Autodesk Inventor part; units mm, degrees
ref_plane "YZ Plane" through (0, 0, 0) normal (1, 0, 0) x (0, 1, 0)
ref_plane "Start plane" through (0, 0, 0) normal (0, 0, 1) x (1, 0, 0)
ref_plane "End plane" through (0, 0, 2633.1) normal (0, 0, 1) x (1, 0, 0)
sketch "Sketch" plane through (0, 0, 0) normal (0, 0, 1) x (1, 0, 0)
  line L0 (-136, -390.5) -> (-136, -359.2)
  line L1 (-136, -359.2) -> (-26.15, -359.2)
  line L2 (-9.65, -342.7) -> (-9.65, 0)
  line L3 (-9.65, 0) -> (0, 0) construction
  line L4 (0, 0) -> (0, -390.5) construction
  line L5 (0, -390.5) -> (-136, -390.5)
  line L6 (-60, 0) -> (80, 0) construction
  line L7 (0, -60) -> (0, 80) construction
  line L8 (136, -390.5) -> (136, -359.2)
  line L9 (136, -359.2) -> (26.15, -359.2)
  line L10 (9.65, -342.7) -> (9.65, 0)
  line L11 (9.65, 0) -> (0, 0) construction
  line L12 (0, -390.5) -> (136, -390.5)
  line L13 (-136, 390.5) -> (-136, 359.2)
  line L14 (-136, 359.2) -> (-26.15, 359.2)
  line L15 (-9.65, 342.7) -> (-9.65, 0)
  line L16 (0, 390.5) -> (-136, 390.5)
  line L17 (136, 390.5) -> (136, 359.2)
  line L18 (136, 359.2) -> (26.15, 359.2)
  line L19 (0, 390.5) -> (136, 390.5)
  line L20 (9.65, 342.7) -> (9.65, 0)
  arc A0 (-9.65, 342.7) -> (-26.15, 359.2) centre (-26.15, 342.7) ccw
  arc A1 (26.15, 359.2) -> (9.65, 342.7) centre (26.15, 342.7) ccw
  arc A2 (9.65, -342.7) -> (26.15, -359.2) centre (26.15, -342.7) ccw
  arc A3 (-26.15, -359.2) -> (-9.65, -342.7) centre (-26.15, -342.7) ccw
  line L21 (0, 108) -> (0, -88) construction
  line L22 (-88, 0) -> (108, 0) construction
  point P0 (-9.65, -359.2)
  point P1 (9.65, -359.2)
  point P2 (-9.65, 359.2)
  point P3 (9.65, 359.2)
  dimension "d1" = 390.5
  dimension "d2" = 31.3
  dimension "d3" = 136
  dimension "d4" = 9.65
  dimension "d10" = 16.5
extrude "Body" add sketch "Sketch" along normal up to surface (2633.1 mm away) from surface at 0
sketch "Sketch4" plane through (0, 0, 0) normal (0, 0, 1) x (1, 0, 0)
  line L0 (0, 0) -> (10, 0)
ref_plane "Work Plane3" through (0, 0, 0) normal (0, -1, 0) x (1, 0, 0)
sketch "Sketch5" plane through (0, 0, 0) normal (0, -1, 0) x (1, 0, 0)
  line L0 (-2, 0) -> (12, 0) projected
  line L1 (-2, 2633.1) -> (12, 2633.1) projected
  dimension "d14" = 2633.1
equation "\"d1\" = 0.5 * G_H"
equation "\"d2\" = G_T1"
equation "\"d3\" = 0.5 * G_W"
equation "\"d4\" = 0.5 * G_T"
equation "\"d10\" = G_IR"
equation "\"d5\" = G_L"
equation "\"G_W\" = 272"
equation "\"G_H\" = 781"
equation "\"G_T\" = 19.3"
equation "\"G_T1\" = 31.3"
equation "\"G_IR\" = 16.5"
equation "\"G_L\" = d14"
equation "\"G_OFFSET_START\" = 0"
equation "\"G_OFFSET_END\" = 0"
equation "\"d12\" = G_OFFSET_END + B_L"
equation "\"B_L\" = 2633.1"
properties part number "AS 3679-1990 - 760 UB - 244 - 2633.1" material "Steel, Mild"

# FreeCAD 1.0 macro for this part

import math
import FreeCAD as App
import Part
import Sketcher

V = App.Vector
Q = App.Units.Quantity

doc = App.newDocument("Part")
body = doc.addObject("PartDesign::Body", "Body")

sketch1 = doc.addObject("Sketcher::SketchObject", "Sketch")
body.addObject(sketch1)
sketch1.AttachmentSupport = (doc.XY_Plane, [""])
sketch1.MapMode = "FlatFace"
sketch1.addGeometry([
    Part.LineSegment(V(-136, -359, 0), V(-136, -390, 0)),
    Part.LineSegment(V(-136, -390, 0), V(136, -390, 0)),
    Part.LineSegment(V(136, -390, 0), V(136, -359, 0)),
    Part.LineSegment(V(136, -359, 0), V(26, -359, 0)),
    Part.ArcOfCircle(Part.Circle(V(26, -343, 0), V(0, 0, 1), 16), math.radians(180), math.radians(270)),
    Part.LineSegment(V(10, -343, 0), V(10, 343, 0)),
    Part.ArcOfCircle(Part.Circle(V(26, 343, 0), V(0, 0, 1), 16), math.radians(90), math.radians(180)),
    Part.LineSegment(V(26, 359, 0), V(136, 359, 0)),
    Part.LineSegment(V(136, 359, 0), V(136, 390, 0)),
    Part.LineSegment(V(136, 390, 0), V(-136, 390, 0)),
    Part.LineSegment(V(-136, 390, 0), V(-136, 359, 0)),
    Part.LineSegment(V(-136, 359, 0), V(-26, 359, 0)),
    Part.ArcOfCircle(Part.Circle(V(-26, 343, 0), V(0, 0, 1), 16), math.radians(0), math.radians(90)),
    Part.LineSegment(V(-10, 343, 0), V(-10, -343, 0)),
    Part.ArcOfCircle(Part.Circle(V(-26, -343, 0), V(0, 0, 1), 16), math.radians(-90), math.radians(0)),
    Part.LineSegment(V(-26, -359, 0), V(-136, -359, 0)),
], False)
sketch1.addConstraint([
    Sketcher.Constraint("Coincident", 0, 2, 1, 1),
    Sketcher.Constraint("Coincident", 1, 2, 2, 1),
    Sketcher.Constraint("Coincident", 2, 2, 3, 1),
    Sketcher.Constraint("Tangent", 3, 2, 4, 2),
    Sketcher.Constraint("Tangent", 4, 1, 5, 1),
    Sketcher.Constraint("Tangent", 5, 2, 6, 2),
    Sketcher.Constraint("Tangent", 6, 1, 7, 1),
    Sketcher.Constraint("Coincident", 7, 2, 8, 1),
    Sketcher.Constraint("Coincident", 8, 2, 9, 1),
    Sketcher.Constraint("Coincident", 9, 2, 10, 1),
    Sketcher.Constraint("Coincident", 10, 2, 11, 1),
    Sketcher.Constraint("Tangent", 11, 2, 12, 2),
    Sketcher.Constraint("Tangent", 12, 1, 13, 1),
    Sketcher.Constraint("Tangent", 13, 2, 14, 2),
    Sketcher.Constraint("Tangent", 14, 1, 15, 1),
    Sketcher.Constraint("Coincident", 15, 2, 0, 1),
    Sketcher.Constraint("Vertical", 0),
    Sketcher.Constraint("Horizontal", 1),
    Sketcher.Constraint("Vertical", 2),
    Sketcher.Constraint("Horizontal", 3),
    Sketcher.Constraint("Vertical", 5),
    Sketcher.Constraint("Horizontal", 7),
    Sketcher.Constraint("Vertical", 8),
    Sketcher.Constraint("Horizontal", 9),
    Sketcher.Constraint("Vertical", 10),
    Sketcher.Constraint("Horizontal", 11),
    Sketcher.Constraint("Vertical", 13),
    Sketcher.Constraint("Horizontal", 15),
    Sketcher.Constraint("Equal", 4, 6),
    Sketcher.Constraint("Equal", 6, 12),
    Sketcher.Constraint("Equal", 12, 14),
    Sketcher.Constraint("Symmetric", 4, 3, 12, 3, -1, 1),
    Sketcher.Constraint("Symmetric", 0, 2, 8, 2, -1, 1),
    Sketcher.Constraint("Symmetric", 7, 2, 10, 2, -2),
    Sketcher.Constraint("Symmetric", 2, 2, 15, 2, -2),
    Sketcher.Constraint("Radius", 4, Q("16.5 mm")),
    Sketcher.Constraint("DistanceY", 0, 2, 0, 1, Q("31.3 mm")),
    Sketcher.Constraint("DistanceX", 0, 2, -1, 1, Q("136 mm")),
    Sketcher.Constraint("DistanceY", 0, 2, -1, 1, Q("390.5 mm")),
    Sketcher.Constraint("DistanceX", -1, 1, 4, 1, Q("9.65 mm")),
])
pad1 = doc.addObject("PartDesign::Pad", "Pad")
body.addObject(pad1)
pad1.Profile = sketch1
pad1.Length = 2633.1

doc.recompute()
